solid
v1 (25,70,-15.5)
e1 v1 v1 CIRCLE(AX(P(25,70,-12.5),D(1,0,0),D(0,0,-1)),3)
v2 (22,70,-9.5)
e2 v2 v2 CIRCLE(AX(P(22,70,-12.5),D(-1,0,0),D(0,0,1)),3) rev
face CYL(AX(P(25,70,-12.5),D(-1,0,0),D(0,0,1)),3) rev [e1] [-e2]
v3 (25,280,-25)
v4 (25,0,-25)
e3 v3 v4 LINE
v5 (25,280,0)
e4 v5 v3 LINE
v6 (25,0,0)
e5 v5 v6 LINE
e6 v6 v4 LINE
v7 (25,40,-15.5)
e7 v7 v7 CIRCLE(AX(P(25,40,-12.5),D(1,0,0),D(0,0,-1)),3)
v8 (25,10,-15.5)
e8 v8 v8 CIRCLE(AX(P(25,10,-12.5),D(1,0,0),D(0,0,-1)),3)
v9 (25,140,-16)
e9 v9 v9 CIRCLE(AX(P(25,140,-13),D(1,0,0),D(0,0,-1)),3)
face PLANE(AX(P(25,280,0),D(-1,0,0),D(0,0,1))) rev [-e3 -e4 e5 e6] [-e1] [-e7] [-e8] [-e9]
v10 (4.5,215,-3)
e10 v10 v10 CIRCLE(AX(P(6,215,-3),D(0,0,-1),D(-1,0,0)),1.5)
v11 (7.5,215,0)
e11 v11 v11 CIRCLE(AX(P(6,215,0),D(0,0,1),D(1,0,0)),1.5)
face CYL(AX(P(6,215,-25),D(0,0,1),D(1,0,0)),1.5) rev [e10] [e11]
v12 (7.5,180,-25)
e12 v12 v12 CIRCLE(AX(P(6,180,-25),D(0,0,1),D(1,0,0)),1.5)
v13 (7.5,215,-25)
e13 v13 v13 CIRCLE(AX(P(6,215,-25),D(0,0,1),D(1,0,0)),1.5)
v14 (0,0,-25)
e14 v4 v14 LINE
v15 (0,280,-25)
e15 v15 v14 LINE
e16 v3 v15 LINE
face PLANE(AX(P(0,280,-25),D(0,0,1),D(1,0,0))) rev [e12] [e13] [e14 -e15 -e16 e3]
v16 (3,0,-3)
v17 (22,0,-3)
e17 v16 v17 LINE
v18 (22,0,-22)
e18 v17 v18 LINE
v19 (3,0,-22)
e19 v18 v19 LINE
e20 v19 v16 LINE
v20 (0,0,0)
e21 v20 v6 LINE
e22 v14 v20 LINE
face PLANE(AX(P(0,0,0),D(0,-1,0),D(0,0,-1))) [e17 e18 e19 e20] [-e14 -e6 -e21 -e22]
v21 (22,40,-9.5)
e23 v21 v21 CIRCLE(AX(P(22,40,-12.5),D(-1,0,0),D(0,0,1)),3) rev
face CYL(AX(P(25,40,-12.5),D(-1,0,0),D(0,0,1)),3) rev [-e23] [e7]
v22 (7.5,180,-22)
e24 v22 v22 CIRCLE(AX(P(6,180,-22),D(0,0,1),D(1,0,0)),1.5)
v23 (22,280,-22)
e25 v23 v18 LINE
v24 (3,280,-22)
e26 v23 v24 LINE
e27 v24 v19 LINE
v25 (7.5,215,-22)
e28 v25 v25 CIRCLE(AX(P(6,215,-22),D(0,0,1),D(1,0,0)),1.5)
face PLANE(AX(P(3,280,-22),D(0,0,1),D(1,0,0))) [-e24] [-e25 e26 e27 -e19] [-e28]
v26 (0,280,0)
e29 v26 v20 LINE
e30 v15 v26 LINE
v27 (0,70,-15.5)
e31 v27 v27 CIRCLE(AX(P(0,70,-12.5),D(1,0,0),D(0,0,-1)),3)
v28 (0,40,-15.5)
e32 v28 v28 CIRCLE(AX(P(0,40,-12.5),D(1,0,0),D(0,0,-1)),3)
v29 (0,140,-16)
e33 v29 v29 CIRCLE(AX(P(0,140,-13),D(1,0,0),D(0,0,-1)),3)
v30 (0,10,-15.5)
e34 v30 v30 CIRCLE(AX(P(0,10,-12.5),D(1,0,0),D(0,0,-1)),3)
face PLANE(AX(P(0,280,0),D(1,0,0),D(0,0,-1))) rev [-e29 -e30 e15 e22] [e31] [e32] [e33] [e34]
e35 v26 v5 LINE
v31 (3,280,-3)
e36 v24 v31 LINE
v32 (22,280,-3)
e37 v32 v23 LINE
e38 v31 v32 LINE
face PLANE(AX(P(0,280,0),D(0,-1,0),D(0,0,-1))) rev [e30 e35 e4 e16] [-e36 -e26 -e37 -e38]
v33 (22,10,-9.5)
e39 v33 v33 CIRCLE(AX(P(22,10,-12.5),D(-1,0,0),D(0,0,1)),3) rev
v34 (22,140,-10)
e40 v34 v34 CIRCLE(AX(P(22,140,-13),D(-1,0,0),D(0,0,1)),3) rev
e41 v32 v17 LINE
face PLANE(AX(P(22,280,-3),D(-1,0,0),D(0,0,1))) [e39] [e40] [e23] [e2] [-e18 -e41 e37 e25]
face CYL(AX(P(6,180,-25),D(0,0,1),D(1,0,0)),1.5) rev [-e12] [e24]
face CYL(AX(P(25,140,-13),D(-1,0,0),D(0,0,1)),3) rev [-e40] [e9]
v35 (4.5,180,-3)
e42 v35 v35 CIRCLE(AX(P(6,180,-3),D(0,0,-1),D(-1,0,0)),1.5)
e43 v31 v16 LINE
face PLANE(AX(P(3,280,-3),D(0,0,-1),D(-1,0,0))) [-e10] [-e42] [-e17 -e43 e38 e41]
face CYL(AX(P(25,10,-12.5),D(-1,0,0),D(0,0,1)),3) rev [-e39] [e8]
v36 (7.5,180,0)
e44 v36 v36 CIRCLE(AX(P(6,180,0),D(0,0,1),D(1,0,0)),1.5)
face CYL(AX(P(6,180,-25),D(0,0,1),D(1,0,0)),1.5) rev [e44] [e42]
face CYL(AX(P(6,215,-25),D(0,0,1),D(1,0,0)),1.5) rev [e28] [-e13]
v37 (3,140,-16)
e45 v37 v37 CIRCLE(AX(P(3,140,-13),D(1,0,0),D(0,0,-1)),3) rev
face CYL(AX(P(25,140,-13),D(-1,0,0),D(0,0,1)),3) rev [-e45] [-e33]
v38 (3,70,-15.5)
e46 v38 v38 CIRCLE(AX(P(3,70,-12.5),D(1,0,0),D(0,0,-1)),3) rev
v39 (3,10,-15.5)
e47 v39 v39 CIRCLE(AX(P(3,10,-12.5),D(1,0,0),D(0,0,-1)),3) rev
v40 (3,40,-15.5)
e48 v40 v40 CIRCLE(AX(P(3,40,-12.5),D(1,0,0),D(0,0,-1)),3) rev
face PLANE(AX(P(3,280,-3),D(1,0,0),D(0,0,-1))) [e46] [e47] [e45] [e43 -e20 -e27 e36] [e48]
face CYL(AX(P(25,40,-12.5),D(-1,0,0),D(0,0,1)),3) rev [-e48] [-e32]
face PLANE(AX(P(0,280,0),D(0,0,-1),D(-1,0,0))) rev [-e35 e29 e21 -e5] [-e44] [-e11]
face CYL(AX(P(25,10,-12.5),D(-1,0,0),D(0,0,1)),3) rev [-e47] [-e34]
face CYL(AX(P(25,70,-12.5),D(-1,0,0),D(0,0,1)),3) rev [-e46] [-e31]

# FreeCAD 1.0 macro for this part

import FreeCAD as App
import Part
import Sketcher
from FreeCAD import Vector
Q = App.Units.Quantity

doc = App.newDocument("Part")
params = doc.addObject("Spreadsheet::Sheet", "Params")
for row, (alias, value) in enumerate([
    ("sketch1_width", "25 mm"),
    ("sketch1_width2", "19 mm"),
    ("pad1_length", "280 mm"),
    ("sketch2_diameter", "6 mm"),
    ("sketch3_diameter", "3 mm"),
], start=1):
    params.set(f"A{row}", alias)
    params.set(f"B{row}", "=" + value)
    params.setAlias(f"B{row}", alias)

body = doc.addObject("PartDesign::Body", "Body")

# Sketch on XZ plane
sketch1 = body.newObject("Sketcher::SketchObject", "Sketch")
sketch1.AttachmentSupport = (doc.getObject("XZ_Plane"), [""])
sketch1.MapMode = "FlatFace"
sketch1.addGeometry(Part.LineSegment(Vector(0, -25, 0), Vector(0, 0, 0)), False)
sketch1.addGeometry(Part.LineSegment(Vector(0, 0, 0), Vector(25, 0, 0)), False)
sketch1.addGeometry(Part.LineSegment(Vector(25, 0, 0), Vector(25, -25, 0)), False)
sketch1.addGeometry(Part.LineSegment(Vector(25, -25, 0), Vector(0, -25, 0)), False)
sketch1.addGeometry(Part.LineSegment(Vector(22, -3, 0), Vector(3, -3, 0)), False)
sketch1.addGeometry(Part.LineSegment(Vector(3, -3, 0), Vector(3, -22, 0)), False)
sketch1.addGeometry(Part.LineSegment(Vector(3, -22, 0), Vector(22, -22, 0)), False)
sketch1.addGeometry(Part.LineSegment(Vector(22, -22, 0), Vector(22, -3, 0)), False)
sketch1.addConstraint(Sketcher.Constraint("Coincident", 0, 2, 1, 1))
sketch1.addConstraint(Sketcher.Constraint("Coincident", 1, 2, 2, 1))
sketch1.addConstraint(Sketcher.Constraint("Coincident", 2, 2, 3, 1))
sketch1.addConstraint(Sketcher.Constraint("Coincident", 3, 2, 0, 1))
sketch1.addConstraint(Sketcher.Constraint("Coincident", 4, 2, 5, 1))
sketch1.addConstraint(Sketcher.Constraint("Coincident", 5, 2, 6, 1))
sketch1.addConstraint(Sketcher.Constraint("Coincident", 6, 2, 7, 1))
sketch1.addConstraint(Sketcher.Constraint("Coincident", 7, 2, 4, 1))
sketch1.addConstraint(Sketcher.Constraint("Vertical", 0))
sketch1.addConstraint(Sketcher.Constraint("Horizontal", 1))
sketch1.addConstraint(Sketcher.Constraint("Vertical", 2))
sketch1.addConstraint(Sketcher.Constraint("Horizontal", 3))
sketch1.addConstraint(Sketcher.Constraint("Horizontal", 4))
sketch1.addConstraint(Sketcher.Constraint("Vertical", 5))
sketch1.addConstraint(Sketcher.Constraint("Horizontal", 6))
sketch1.addConstraint(Sketcher.Constraint("Vertical", 7))
sketch1.addConstraint(Sketcher.Constraint("Coincident", 0, 2, -1, 1))
sketch1.addConstraint(Sketcher.Constraint("Equal", 3, 0))
sketch1.addConstraint(Sketcher.Constraint("Equal", 6, 5))
sketch1.addConstraint(Sketcher.Constraint("DistanceX", 1, 1, 1, 2, Q("25 mm")))
sketch1.addConstraint(Sketcher.Constraint("DistanceX", 4, 2, 4, 1, Q("19 mm")))
sketch1.addConstraint(Sketcher.Constraint("DistanceX", -1, 1, 4, 2, Q("3 mm")))
sketch1.addConstraint(Sketcher.Constraint("DistanceY", 4, 2, -1, 1, Q("3 mm")))
sketch1.setExpression("Constraints[19]", "Params.sketch1_width")
sketch1.setExpression("Constraints[20]", "Params.sketch1_width2")
pad1 = body.newObject("PartDesign::Pad", "Pad")
pad1.Profile = sketch1
pad1.setExpression("Length", "Params.pad1_length")
pad1.Reversed = True

# Sketch on YZ plane
sketch2 = body.newObject("Sketcher::SketchObject", "Sketch001")
sketch2.AttachmentSupport = (doc.getObject("YZ_Plane"), [""])
sketch2.MapMode = "FlatFace"
sketch2.addGeometry(Part.Circle(Vector(10, -12.5, 0), Vector(0, 0, 1), 3), False)
sketch2.addGeometry(Part.Circle(Vector(40, -12.5, 0), Vector(0, 0, 1), 3), False)
sketch2.addGeometry(Part.Circle(Vector(70, -12.5, 0), Vector(0, 0, 1), 3), False)
sketch2.addGeometry(Part.Circle(Vector(140, -13, 0), Vector(0, 0, 1), 3), False)
sketch2.addConstraint(Sketcher.Constraint("Equal", 0, 1))
sketch2.addConstraint(Sketcher.Constraint("Equal", 1, 2))
sketch2.addConstraint(Sketcher.Constraint("Equal", 2, 3))
sketch2.addConstraint(Sketcher.Constraint("Horizontal", 0, 3, 1, 3))
sketch2.addConstraint(Sketcher.Constraint("Horizontal", 1, 3, 2, 3))
sketch2.addConstraint(Sketcher.Constraint("Diameter", 0, Q("6 mm")))
sketch2.addConstraint(Sketcher.Constraint("DistanceX", -1, 1, 0, 3, Q("10 mm")))
sketch2.addConstraint(Sketcher.Constraint("DistanceX", -1, 1, 1, 3, Q("40 mm")))
sketch2.addConstraint(Sketcher.Constraint("DistanceX", -1, 1, 2, 3, Q("70 mm")))
sketch2.addConstraint(Sketcher.Constraint("DistanceX", -1, 1, 3, 3, Q("140 mm")))
sketch2.addConstraint(Sketcher.Constraint("DistanceY", 3, 3, -1, 1, Q("13 mm")))
sketch2.addConstraint(Sketcher.Constraint("DistanceY", 0, 3, -1, 1, Q("12.5 mm")))
sketch2.setExpression("Constraints[5]", "Params.sketch2_diameter")
pocket1 = body.newObject("PartDesign::Pocket", "Pocket")
pocket1.Profile = sketch2
pocket1.Type = "ThroughAll"
pocket1.Reversed = True

# Sketch on XY plane
sketch3 = body.newObject("Sketcher::SketchObject", "Sketch002")
sketch3.AttachmentSupport = (doc.getObject("XY_Plane"), [""])
sketch3.MapMode = "FlatFace"
sketch3.addGeometry(Part.Circle(Vector(6, 180, 0), Vector(0, 0, 1), 1.5), False)
sketch3.addGeometry(Part.Circle(Vector(6, 215, 0), Vector(0, 0, 1), 1.5), False)
sketch3.addConstraint(Sketcher.Constraint("Equal", 0, 1))
sketch3.addConstraint(Sketcher.Constraint("Vertical", 0, 3, 1, 3))
sketch3.addConstraint(Sketcher.Constraint("Diameter", 0, Q("3 mm")))
sketch3.addConstraint(Sketcher.Constraint("DistanceX", -1, 1, 0, 3, Q("6 mm")))
sketch3.addConstraint(Sketcher.Constraint("DistanceY", -1, 1, 0, 3, Q("180 mm")))
sketch3.addConstraint(Sketcher.Constraint("DistanceY", -1, 1, 1, 3, Q("215 mm")))
sketch3.setExpression("Constraints[2]", "Params.sketch3_diameter")
pocket2 = body.newObject("PartDesign::Pocket", "Pocket001")
pocket2.Profile = sketch3
pocket2.Type = "ThroughAll"
pocket2.Midplane = True

doc.recompute()
